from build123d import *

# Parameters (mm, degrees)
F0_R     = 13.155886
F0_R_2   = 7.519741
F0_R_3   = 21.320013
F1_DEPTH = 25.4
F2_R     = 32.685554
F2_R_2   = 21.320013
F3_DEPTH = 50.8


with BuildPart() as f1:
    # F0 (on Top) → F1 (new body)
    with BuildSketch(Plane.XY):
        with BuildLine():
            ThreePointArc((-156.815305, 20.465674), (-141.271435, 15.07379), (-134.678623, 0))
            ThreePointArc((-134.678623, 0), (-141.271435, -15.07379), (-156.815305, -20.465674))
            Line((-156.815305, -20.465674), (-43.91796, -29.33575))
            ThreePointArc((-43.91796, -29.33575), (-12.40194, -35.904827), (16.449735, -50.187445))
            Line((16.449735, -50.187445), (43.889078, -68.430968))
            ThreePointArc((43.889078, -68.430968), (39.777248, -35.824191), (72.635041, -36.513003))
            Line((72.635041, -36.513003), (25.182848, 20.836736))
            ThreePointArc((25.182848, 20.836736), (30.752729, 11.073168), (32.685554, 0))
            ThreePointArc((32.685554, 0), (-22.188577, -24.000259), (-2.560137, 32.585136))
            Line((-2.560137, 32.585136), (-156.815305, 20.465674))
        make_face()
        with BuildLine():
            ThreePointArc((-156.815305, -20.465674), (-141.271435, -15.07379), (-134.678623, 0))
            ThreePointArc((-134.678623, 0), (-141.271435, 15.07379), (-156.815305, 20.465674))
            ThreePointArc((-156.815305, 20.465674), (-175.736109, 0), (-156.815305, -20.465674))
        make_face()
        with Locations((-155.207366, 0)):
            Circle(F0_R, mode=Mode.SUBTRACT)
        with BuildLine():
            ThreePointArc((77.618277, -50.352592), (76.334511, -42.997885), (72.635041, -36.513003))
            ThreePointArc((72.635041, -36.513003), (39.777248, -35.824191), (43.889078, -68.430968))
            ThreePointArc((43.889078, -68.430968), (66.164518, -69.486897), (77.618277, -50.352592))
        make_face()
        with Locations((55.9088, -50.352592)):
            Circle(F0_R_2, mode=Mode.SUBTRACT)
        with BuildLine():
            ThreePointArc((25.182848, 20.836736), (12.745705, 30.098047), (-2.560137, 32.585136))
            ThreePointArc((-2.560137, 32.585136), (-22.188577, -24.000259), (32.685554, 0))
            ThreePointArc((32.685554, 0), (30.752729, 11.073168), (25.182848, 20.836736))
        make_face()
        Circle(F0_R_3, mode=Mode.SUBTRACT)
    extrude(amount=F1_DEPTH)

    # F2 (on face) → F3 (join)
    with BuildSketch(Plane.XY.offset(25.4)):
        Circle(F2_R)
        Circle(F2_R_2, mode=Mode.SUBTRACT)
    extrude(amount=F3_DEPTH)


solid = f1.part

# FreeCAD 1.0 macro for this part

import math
import FreeCAD as App
import Part
import Sketcher
from FreeCAD import Vector
Q = App.Units.Quantity

doc = App.newDocument("Part")
body = doc.addObject("PartDesign::Body", "Body")

# Sketch on XY plane
sketch1 = body.newObject("Sketcher::SketchObject", "Sketch")
sketch1.AttachmentSupport = (doc.getObject("XY_Plane"), [""])
sketch1.MapMode = "FlatFace"
sketch1.addGeometry(Part.LineSegment(Vector(-157, -20, 0), Vector(-44, -29, 0)), False)
sketch1.addGeometry(Part.ArcOfCircle(Part.Circle(Vector(-54, -156, 0), Vector(0, 0, 1), 127), math.radians(56), math.radians(86)), False)
sketch1.addGeometry(Part.LineSegment(Vector(16, -50, 0), Vector(44, -68, 0)), False)
sketch1.addGeometry(Part.ArcOfCircle(Part.Circle(Vector(56, -50, 0), Vector(0, 0, 1), 22), math.radians(-124), math.radians(0)), False)
sketch1.addGeometry(Part.ArcOfCircle(Part.Circle(Vector(56, -50, 0), Vector(0, 0, 1), 22), math.radians(0), math.radians(40)), False)
sketch1.addGeometry(Part.LineSegment(Vector(73, -37, 0), Vector(25, 21, 0)), False)
sketch1.addGeometry(Part.ArcOfCircle(Part.Circle(Vector(0, 0, 0), Vector(0, 0, 1), 33), math.radians(40), math.radians(94)), False)
sketch1.addGeometry(Part.LineSegment(Vector(-3, 33, 0), Vector(-157, 20, 0)), False)
sketch1.addGeometry(Part.ArcOfCircle(Part.Circle(Vector(-155, 0, 0), Vector(0, 0, 1), 21), math.radians(94), math.radians(266)), False)
sketch1.addGeometry(Part.Circle(Vector(56, -50, 0), Vector(0, 0, 1), 8), False)
sketch1.addGeometry(Part.Circle(Vector(-155, 0, 0), Vector(0, 0, 1), 13), False)
sketch1.addGeometry(Part.Circle(Vector(0, 0, 0), Vector(0, 0, 1), 21), False)
sketch1.addConstraint(Sketcher.Constraint("Tangent", 0, 2, 1, 2))
sketch1.addConstraint(Sketcher.Constraint("Tangent", 1, 1, 2, 1))
sketch1.addConstraint(Sketcher.Constraint("Tangent", 2, 2, 3, 1))
sketch1.addConstraint(Sketcher.Constraint("Tangent", 3, 2, 4, 1))
sketch1.addConstraint(Sketcher.Constraint("Tangent", 4, 2, 5, 1))
sketch1.addConstraint(Sketcher.Constraint("Tangent", 5, 2, 6, 1))
sketch1.addConstraint(Sketcher.Constraint("Tangent", 6, 2, 7, 1))
sketch1.addConstraint(Sketcher.Constraint("Tangent", 7, 2, 8, 1))
sketch1.addConstraint(Sketcher.Constraint("Tangent", 8, 2, 0, 1))
sketch1.addConstraint(Sketcher.Constraint("Coincident", 6, 3, -1, 1))
sketch1.addConstraint(Sketcher.Constraint("Coincident", 11, 3, -1, 1))
sketch1.addConstraint(Sketcher.Constraint("Coincident", 9, 3, 3, 3))
sketch1.addConstraint(Sketcher.Constraint("Coincident", 10, 3, 8, 3))
sketch1.addConstraint(Sketcher.Constraint("Symmetric", 7, 2, 8, 2, -1))
sketch1.addConstraint(Sketcher.Constraint("Horizontal", 9, 3, 3, 2))
sketch1.addConstraint(Sketcher.Constraint("Radius", 6, Q("32.685549 mm")))
sketch1.addConstraint(Sketcher.Constraint("Diameter", 9, Q("15.039482 mm")))
sketch1.addConstraint(Sketcher.Constraint("Diameter", 10, Q("26.311772 mm")))
sketch1.addConstraint(Sketcher.Constraint("Diameter", 11, Q("42.640026 mm")))
sketch1.addConstraint(Sketcher.Constraint("Radius", 1, Q("127.000013 mm")))
sketch1.addConstraint(Sketcher.Constraint("Radius", 3, Q("21.709477 mm")))
sketch1.addConstraint(Sketcher.Constraint("Radius", 4, Q("21.709474 mm")))
sketch1.addConstraint(Sketcher.Constraint("Radius", 8, Q("20.528743 mm")))
sketch1.addConstraint(Sketcher.Constraint("Distance", 5, Q("74.4359 mm")))
sketch1.addConstraint(Sketcher.Constraint("DistanceX", -1, 1, 3, 3, Q("55.9088 mm")))
sketch1.addConstraint(Sketcher.Constraint("DistanceY", 1, 3, 3, 3, Q("105.592999 mm")))
sketch1.addConstraint(Sketcher.Constraint("DistanceX", 1, 3, 4, 3, Q("109.774201 mm")))
pad1 = body.newObject("PartDesign::Pad", "Pad")
pad1.Profile = sketch1
pad1.Length = Q("1 in")

# Sketch on XY plane
sketch2 = body.newObject("Sketcher::SketchObject", "Sketch001")
sketch2.AttachmentSupport = (doc.getObject("XY_Plane"), [""])
sketch2.MapMode = "FlatFace"
sketch2.AttachmentOffset = App.Placement(Vector(0, 0, 1 * 25.4), App.Rotation())
sketch2.addGeometry(Part.Circle(Vector(0, 0, 0), Vector(0, 0, 1), 33), False)
sketch2.addGeometry(Part.Circle(Vector(0, 0, 0), Vector(0, 0, 1), 21), False)
sketch2.addConstraint(Sketcher.Constraint("Coincident", 0, 3, -1, 1))
sketch2.addConstraint(Sketcher.Constraint("Coincident", 1, 3, -1, 1))
sketch2.addConstraint(Sketcher.Constraint("Diameter", 0, Q("65.371108 mm")))
sketch2.addConstraint(Sketcher.Constraint("Diameter", 1, Q("42.640026 mm")))
pad2 = body.newObject("PartDesign::Pad", "Pad001")
pad2.Profile = sketch2
pad2.Length = Q("2 in")

doc.recompute()
